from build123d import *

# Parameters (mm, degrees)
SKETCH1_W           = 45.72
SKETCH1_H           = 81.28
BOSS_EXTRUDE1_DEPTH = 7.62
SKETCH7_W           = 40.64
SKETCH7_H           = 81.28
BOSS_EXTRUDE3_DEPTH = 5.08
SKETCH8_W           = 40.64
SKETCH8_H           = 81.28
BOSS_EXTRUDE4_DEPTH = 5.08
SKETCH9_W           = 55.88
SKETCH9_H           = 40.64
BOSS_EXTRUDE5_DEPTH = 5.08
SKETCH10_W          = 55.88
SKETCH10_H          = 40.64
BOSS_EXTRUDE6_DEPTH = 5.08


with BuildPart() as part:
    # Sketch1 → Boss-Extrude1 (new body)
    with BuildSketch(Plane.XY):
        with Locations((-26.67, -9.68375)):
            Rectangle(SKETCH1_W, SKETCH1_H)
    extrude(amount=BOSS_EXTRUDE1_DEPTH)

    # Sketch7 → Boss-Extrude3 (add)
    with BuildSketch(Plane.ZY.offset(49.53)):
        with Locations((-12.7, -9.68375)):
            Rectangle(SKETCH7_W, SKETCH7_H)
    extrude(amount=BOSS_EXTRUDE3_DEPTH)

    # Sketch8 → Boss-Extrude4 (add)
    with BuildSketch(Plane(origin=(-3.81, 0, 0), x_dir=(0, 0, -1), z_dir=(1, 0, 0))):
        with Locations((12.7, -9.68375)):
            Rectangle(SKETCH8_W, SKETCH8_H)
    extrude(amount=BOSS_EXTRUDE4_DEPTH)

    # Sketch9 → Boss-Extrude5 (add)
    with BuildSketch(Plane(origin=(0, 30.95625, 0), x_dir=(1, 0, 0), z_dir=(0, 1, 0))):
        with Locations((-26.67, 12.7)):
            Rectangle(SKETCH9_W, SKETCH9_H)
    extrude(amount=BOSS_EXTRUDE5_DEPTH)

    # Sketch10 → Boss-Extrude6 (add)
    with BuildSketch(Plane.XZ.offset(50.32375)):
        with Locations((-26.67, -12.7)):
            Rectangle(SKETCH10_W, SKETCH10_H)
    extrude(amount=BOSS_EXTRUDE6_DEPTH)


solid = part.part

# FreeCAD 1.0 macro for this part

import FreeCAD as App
import Part
import Sketcher

V = App.Vector
Q = App.Units.Quantity

doc = App.newDocument("Part")
body = doc.addObject("PartDesign::Body", "Body")

# Sketch on XY plane
sketch1 = body.newObject("Sketcher::SketchObject", "Sketch")
sketch1.AttachmentSupport = (doc.getObject("XY_Plane"), [""])
sketch1.MapMode = "FlatFace"
sketch1.addGeometry([
    Part.LineSegment(V(-50, 31, 0), V(-50, -50, 0)),
    Part.LineSegment(V(-50, -50, 0), V(-4, -50, 0)),
    Part.LineSegment(V(-4, -50, 0), V(-4, 31, 0)),
    Part.LineSegment(V(-4, 31, 0), V(-50, 31, 0)),
], False)
sketch1.addConstraint([
    Sketcher.Constraint("Coincident", 0, 2, 1, 1),
    Sketcher.Constraint("Coincident", 1, 2, 2, 1),
    Sketcher.Constraint("Coincident", 2, 2, 3, 1),
    Sketcher.Constraint("Coincident", 3, 2, 0, 1),
    Sketcher.Constraint("Vertical", 0),
    Sketcher.Constraint("Horizontal", 1),
    Sketcher.Constraint("Vertical", 2),
    Sketcher.Constraint("Horizontal", 3),
    Sketcher.Constraint("DistanceX", 1, 1, 1, 2, Q("1.8 in")),
    Sketcher.Constraint("DistanceY", 0, 2, 0, 1, Q("3.2 in")),
    Sketcher.Constraint("DistanceX", 0, 2, -1, 1, Q("1.95 in")),
    Sketcher.Constraint("DistanceY", -1, 1, 2, 2, Q("1.21875 in")),
])
pad1 = body.newObject("PartDesign::Pad", "Pad")
pad1.Profile = sketch1
pad1.Length = Q("0.3 in")

# Sketch on YZ plane
sketch2 = body.newObject("Sketcher::SketchObject", "Sketch001")
sketch2.AttachmentSupport = (doc.getObject("YZ_Plane"), [""])
sketch2.MapMode = "FlatFace"
sketch2.AttachmentOffset = App.Placement(V(0, 0, -1.95 * 25.4), App.Rotation())
sketch2.addGeometry([
    Part.LineSegment(V(31, -33, 0), V(-50, -33, 0)),
    Part.LineSegment(V(-50, -33, 0), V(-50, 8, 0)),
    Part.LineSegment(V(-50, 8, 0), V(31, 8, 0)),
    Part.LineSegment(V(31, 8, 0), V(31, -33, 0)),
], False)
sketch2.addConstraint([
    Sketcher.Constraint("Coincident", 0, 2, 1, 1),
    Sketcher.Constraint("Coincident", 1, 2, 2, 1),
    Sketcher.Constraint("Coincident", 2, 2, 3, 1),
    Sketcher.Constraint("Coincident", 3, 2, 0, 1),
    Sketcher.Constraint("Horizontal", 0),
    Sketcher.Constraint("Vertical", 1),
    Sketcher.Constraint("Horizontal", 2),
    Sketcher.Constraint("Vertical", 3),
    Sketcher.Constraint("DistanceX", 0, 2, 0, 1, Q("3.2 in")),
    Sketcher.Constraint("DistanceY", 1, 1, 1, 2, Q("1.6 in")),
    Sketcher.Constraint("DistanceY", 0, 2, -1, 1, Q("1.3 in")),
    Sketcher.Constraint("DistanceX", -1, 1, 2, 2, Q("1.21875 in")),
])
pad2 = body.newObject("PartDesign::Pad", "Pad001")
pad2.Profile = sketch2
pad2.Length = Q("0.2 in")
pad2.Reversed = True

# Sketch on YZ plane
sketch3 = body.newObject("Sketcher::SketchObject", "Sketch002")
sketch3.AttachmentSupport = (doc.getObject("YZ_Plane"), [""])
sketch3.MapMode = "FlatFace"
sketch3.AttachmentOffset = App.Placement(V(0, 0, -0.15 * 25.4), App.Rotation())
sketch3.addGeometry([
    Part.LineSegment(V(31, 8, 0), V(-50, 8, 0)),
    Part.LineSegment(V(-50, 8, 0), V(-50, -33, 0)),
    Part.LineSegment(V(-50, -33, 0), V(31, -33, 0)),
    Part.LineSegment(V(31, -33, 0), V(31, 8, 0)),
], False)
sketch3.addConstraint([
    Sketcher.Constraint("Coincident", 0, 2, 1, 1),
    Sketcher.Constraint("Coincident", 1, 2, 2, 1),
    Sketcher.Constraint("Coincident", 2, 2, 3, 1),
    Sketcher.Constraint("Coincident", 3, 2, 0, 1),
    Sketcher.Constraint("Horizontal", 0),
    Sketcher.Constraint("Vertical", 1),
    Sketcher.Constraint("Horizontal", 2),
    Sketcher.Constraint("Vertical", 3),
    Sketcher.Constraint("DistanceX", 0, 2, 0, 1, Q("3.2 in")),
    Sketcher.Constraint("DistanceY", 1, 2, 1, 1, Q("1.6 in")),
    Sketcher.Constraint("DistanceY", -1, 1, 0, 2, Q("0.3 in")),
    Sketcher.Constraint("DistanceX", -1, 1, 2, 2, Q("1.21875 in")),
])
pad3 = body.newObject("PartDesign::Pad", "Pad002")
pad3.Profile = sketch3
pad3.Length = Q("0.2 in")

# Sketch on XZ plane
sketch4 = body.newObject("Sketcher::SketchObject", "Sketch003")
sketch4.AttachmentSupport = (doc.getObject("XZ_Plane"), [""])
sketch4.MapMode = "FlatFace"
sketch4.AttachmentOffset = App.Placement(V(0, 0, -1.21875 * 25.4), App.Rotation())
sketch4.addGeometry([
    Part.LineSegment(V(-55, -33, 0), V(-55, 8, 0)),
    Part.LineSegment(V(-55, 8, 0), V(1, 8, 0)),
    Part.LineSegment(V(1, 8, 0), V(1, -33, 0)),
    Part.LineSegment(V(1, -33, 0), V(-55, -33, 0)),
], False)
sketch4.addConstraint([
    Sketcher.Constraint("Coincident", 0, 2, 1, 1),
    Sketcher.Constraint("Coincident", 1, 2, 2, 1),
    Sketcher.Constraint("Coincident", 2, 2, 3, 1),
    Sketcher.Constraint("Coincident", 3, 2, 0, 1),
    Sketcher.Constraint("Vertical", 0),
    Sketcher.Constraint("Horizontal", 1),
    Sketcher.Constraint("Vertical", 2),
    Sketcher.Constraint("Horizontal", 3),
    Sketcher.Constraint("DistanceX", 1, 1, 1, 2, Q("2.2 in")),
    Sketcher.Constraint("DistanceY", 0, 1, 0, 2, Q("1.6 in")),
    Sketcher.Constraint("DistanceY", -1, 1, 0, 2, Q("0.3 in")),
    Sketcher.Constraint("DistanceX", 0, 2, -1, 1, Q("2.15 in")),
])
pad4 = body.newObject("PartDesign::Pad", "Pad003")
pad4.Profile = sketch4
pad4.Length = Q("0.2 in")
pad4.Reversed = True

# Sketch on XZ plane
sketch5 = body.newObject("Sketcher::SketchObject", "Sketch004")
sketch5.AttachmentSupport = (doc.getObject("XZ_Plane"), [""])
sketch5.MapMode = "FlatFace"
sketch5.AttachmentOffset = App.Placement(V(0, 0, 50.32375), App.Rotation())
sketch5.addGeometry([
    Part.LineSegment(V(-55, 8, 0), V(-55, -33, 0)),
    Part.LineSegment(V(-55, -33, 0), V(1, -33, 0)),
    Part.LineSegment(V(1, -33, 0), V(1, 8, 0)),
    Part.LineSegment(V(1, 8, 0), V(-55, 8, 0)),
], False)
sketch5.addConstraint([
    Sketcher.Constraint("Coincident", 0, 2, 1, 1),
    Sketcher.Constraint("Coincident", 1, 2, 2, 1),
    Sketcher.Constraint("Coincident", 2, 2, 3, 1),
    Sketcher.Constraint("Coincident", 3, 2, 0, 1),
    Sketcher.Constraint("Vertical", 0),
    Sketcher.Constraint("Horizontal", 1),
    Sketcher.Constraint("Vertical", 2),
    Sketcher.Constraint("Horizontal", 3),
    Sketcher.Constraint("DistanceX", 1, 1, 1, 2, Q("2.2 in")),
    Sketcher.Constraint("DistanceY", 0, 2, 0, 1, Q("1.6 in")),
    Sketcher.Constraint("DistanceY", 0, 2, -1, 1, Q("1.3 in")),
    Sketcher.Constraint("DistanceX", 0, 2, -1, 1, Q("2.15 in")),
])
pad5 = body.newObject("PartDesign::Pad", "Pad004")
pad5.Profile = sketch5
pad5.Length = Q("0.2 in")

doc.recompute()
